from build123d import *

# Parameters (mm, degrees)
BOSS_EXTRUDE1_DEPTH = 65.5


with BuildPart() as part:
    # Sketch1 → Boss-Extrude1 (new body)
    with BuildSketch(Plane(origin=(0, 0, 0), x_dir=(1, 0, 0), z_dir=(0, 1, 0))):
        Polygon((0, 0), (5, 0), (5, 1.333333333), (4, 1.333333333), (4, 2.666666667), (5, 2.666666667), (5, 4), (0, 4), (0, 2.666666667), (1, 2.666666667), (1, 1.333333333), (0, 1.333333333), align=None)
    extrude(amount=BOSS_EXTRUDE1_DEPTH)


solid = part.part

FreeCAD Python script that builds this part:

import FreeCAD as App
import Part
import Sketcher


def add_polygon(sketch, points):
    """Adds a closed chain of lines whose ends are joined by coincident constraints."""
    first, n = sketch.GeometryCount, len(points)
    for a, b in zip(points, points[1:] + points[:1]):
        sketch.addGeometry(Part.LineSegment(App.Vector(*a, 0), App.Vector(*b, 0)), False)
    for i in range(n):
        sketch.addConstraint(Sketcher.Constraint("Coincident", first + i, 2, first + (i + 1) % n, 1))

doc = App.newDocument("Part")
body = doc.addObject("PartDesign::Body", "Body")

sketch1 = body.newObject("Sketcher::SketchObject", "Sketch")
sketch1.AttachmentSupport = (doc.getObject("XZ_Plane"), [""])
sketch1.MapMode = "FlatFace"
add_polygon(sketch1, [(0, 0), (5, 0), (5, -1.3), (4, -1.3), (4, -2.7), (5, -2.7), (5, -4), (0, -4), (0, -2.7), (1, -2.7), (1, -1.3), (0, -1.3)])
sketch1.addConstraint([
    Sketcher.Constraint("Horizontal", 0),
    Sketcher.Constraint("Vertical", 1),
    Sketcher.Constraint("Horizontal", 2),
    Sketcher.Constraint("Vertical", 3),
    Sketcher.Constraint("Horizontal", 4),
    Sketcher.Constraint("Vertical", 5),
    Sketcher.Constraint("Horizontal", 6),
    Sketcher.Constraint("Vertical", 7),
    Sketcher.Constraint("Horizontal", 8),
    Sketcher.Constraint("Vertical", 9),
    Sketcher.Constraint("Horizontal", 10),
    Sketcher.Constraint("Vertical", 11),
    Sketcher.Constraint("Coincident", 11, 2, -1, 1),
    Sketcher.Constraint("PointOnObject", 6, 2, -2),
    Sketcher.Constraint("Horizontal", 4, 2, 7, 2),
    Sketcher.Constraint("Horizontal", 2, 2, 9, 2),
    Sketcher.Constraint("Vertical", 1, 2, 4, 2),
    Sketcher.Constraint("Equal", 4, 8),
    Sketcher.Constraint("Equal", 1, 3),
    Sketcher.Constraint("Equal", 3, 5),
    Sketcher.Constraint("DistanceX", 0, 1, 0, 2, 5.0),
    Sketcher.Constraint("DistanceX", 2, 2, 2, 1, 1.0),
    Sketcher.Constraint("DistanceY", 5, 2, -1, 1, 4.0),
])
pad1 = body.newObject("PartDesign::Pad", "Pad")
pad1.Profile = sketch1
pad1.Length = 65.5
pad1.Reversed = True

doc.recompute()
